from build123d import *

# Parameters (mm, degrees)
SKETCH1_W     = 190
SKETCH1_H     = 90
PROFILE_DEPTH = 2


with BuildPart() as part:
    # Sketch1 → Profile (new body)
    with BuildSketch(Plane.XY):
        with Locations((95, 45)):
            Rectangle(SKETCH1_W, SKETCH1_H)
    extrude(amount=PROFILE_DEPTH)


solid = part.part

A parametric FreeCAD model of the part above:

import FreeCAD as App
import Part
import Sketcher

V = App.Vector
Q = App.Units.Quantity

doc = App.newDocument("Part")
body = doc.addObject("PartDesign::Body", "Body")

# Sketch on XY plane
sketch1 = body.newObject("Sketcher::SketchObject", "Sketch")
sketch1.AttachmentSupport = (doc.getObject("XY_Plane"), [""])
sketch1.MapMode = "FlatFace"
sketch1.addGeometry(Part.LineSegment(V(0, 90, 0), V(0, 0, 0)), False)
sketch1.addGeometry(Part.LineSegment(V(0, 0, 0), V(190, 0, 0)), False)
sketch1.addGeometry(Part.LineSegment(V(190, 0, 0), V(190, 90, 0)), False)
sketch1.addGeometry(Part.LineSegment(V(190, 90, 0), V(0, 90, 0)), False)
sketch1.addConstraint(Sketcher.Constraint("Coincident", 0, 2, 1, 1))
sketch1.addConstraint(Sketcher.Constraint("Coincident", 1, 2, 2, 1))
sketch1.addConstraint(Sketcher.Constraint("Coincident", 2, 2, 3, 1))
sketch1.addConstraint(Sketcher.Constraint("Coincident", 3, 2, 0, 1))
sketch1.addConstraint(Sketcher.Constraint("Vertical", 0))
sketch1.addConstraint(Sketcher.Constraint("Horizontal", 1))
sketch1.addConstraint(Sketcher.Constraint("Vertical", 2))
sketch1.addConstraint(Sketcher.Constraint("Horizontal", 3))
sketch1.addConstraint(Sketcher.Constraint("Coincident", 0, 2, -1, 1))
sketch1.addConstraint(Sketcher.Constraint("DistanceX", 1, 1, 1, 2, Q("190 mm")))
sketch1.addConstraint(Sketcher.Constraint("DistanceY", 0, 2, 0, 1, Q("90 mm")))
pad1 = body.newObject("PartDesign::Pad", "Pad")
pad1.Profile = sketch1
pad1.Length = 2

doc.recompute()
